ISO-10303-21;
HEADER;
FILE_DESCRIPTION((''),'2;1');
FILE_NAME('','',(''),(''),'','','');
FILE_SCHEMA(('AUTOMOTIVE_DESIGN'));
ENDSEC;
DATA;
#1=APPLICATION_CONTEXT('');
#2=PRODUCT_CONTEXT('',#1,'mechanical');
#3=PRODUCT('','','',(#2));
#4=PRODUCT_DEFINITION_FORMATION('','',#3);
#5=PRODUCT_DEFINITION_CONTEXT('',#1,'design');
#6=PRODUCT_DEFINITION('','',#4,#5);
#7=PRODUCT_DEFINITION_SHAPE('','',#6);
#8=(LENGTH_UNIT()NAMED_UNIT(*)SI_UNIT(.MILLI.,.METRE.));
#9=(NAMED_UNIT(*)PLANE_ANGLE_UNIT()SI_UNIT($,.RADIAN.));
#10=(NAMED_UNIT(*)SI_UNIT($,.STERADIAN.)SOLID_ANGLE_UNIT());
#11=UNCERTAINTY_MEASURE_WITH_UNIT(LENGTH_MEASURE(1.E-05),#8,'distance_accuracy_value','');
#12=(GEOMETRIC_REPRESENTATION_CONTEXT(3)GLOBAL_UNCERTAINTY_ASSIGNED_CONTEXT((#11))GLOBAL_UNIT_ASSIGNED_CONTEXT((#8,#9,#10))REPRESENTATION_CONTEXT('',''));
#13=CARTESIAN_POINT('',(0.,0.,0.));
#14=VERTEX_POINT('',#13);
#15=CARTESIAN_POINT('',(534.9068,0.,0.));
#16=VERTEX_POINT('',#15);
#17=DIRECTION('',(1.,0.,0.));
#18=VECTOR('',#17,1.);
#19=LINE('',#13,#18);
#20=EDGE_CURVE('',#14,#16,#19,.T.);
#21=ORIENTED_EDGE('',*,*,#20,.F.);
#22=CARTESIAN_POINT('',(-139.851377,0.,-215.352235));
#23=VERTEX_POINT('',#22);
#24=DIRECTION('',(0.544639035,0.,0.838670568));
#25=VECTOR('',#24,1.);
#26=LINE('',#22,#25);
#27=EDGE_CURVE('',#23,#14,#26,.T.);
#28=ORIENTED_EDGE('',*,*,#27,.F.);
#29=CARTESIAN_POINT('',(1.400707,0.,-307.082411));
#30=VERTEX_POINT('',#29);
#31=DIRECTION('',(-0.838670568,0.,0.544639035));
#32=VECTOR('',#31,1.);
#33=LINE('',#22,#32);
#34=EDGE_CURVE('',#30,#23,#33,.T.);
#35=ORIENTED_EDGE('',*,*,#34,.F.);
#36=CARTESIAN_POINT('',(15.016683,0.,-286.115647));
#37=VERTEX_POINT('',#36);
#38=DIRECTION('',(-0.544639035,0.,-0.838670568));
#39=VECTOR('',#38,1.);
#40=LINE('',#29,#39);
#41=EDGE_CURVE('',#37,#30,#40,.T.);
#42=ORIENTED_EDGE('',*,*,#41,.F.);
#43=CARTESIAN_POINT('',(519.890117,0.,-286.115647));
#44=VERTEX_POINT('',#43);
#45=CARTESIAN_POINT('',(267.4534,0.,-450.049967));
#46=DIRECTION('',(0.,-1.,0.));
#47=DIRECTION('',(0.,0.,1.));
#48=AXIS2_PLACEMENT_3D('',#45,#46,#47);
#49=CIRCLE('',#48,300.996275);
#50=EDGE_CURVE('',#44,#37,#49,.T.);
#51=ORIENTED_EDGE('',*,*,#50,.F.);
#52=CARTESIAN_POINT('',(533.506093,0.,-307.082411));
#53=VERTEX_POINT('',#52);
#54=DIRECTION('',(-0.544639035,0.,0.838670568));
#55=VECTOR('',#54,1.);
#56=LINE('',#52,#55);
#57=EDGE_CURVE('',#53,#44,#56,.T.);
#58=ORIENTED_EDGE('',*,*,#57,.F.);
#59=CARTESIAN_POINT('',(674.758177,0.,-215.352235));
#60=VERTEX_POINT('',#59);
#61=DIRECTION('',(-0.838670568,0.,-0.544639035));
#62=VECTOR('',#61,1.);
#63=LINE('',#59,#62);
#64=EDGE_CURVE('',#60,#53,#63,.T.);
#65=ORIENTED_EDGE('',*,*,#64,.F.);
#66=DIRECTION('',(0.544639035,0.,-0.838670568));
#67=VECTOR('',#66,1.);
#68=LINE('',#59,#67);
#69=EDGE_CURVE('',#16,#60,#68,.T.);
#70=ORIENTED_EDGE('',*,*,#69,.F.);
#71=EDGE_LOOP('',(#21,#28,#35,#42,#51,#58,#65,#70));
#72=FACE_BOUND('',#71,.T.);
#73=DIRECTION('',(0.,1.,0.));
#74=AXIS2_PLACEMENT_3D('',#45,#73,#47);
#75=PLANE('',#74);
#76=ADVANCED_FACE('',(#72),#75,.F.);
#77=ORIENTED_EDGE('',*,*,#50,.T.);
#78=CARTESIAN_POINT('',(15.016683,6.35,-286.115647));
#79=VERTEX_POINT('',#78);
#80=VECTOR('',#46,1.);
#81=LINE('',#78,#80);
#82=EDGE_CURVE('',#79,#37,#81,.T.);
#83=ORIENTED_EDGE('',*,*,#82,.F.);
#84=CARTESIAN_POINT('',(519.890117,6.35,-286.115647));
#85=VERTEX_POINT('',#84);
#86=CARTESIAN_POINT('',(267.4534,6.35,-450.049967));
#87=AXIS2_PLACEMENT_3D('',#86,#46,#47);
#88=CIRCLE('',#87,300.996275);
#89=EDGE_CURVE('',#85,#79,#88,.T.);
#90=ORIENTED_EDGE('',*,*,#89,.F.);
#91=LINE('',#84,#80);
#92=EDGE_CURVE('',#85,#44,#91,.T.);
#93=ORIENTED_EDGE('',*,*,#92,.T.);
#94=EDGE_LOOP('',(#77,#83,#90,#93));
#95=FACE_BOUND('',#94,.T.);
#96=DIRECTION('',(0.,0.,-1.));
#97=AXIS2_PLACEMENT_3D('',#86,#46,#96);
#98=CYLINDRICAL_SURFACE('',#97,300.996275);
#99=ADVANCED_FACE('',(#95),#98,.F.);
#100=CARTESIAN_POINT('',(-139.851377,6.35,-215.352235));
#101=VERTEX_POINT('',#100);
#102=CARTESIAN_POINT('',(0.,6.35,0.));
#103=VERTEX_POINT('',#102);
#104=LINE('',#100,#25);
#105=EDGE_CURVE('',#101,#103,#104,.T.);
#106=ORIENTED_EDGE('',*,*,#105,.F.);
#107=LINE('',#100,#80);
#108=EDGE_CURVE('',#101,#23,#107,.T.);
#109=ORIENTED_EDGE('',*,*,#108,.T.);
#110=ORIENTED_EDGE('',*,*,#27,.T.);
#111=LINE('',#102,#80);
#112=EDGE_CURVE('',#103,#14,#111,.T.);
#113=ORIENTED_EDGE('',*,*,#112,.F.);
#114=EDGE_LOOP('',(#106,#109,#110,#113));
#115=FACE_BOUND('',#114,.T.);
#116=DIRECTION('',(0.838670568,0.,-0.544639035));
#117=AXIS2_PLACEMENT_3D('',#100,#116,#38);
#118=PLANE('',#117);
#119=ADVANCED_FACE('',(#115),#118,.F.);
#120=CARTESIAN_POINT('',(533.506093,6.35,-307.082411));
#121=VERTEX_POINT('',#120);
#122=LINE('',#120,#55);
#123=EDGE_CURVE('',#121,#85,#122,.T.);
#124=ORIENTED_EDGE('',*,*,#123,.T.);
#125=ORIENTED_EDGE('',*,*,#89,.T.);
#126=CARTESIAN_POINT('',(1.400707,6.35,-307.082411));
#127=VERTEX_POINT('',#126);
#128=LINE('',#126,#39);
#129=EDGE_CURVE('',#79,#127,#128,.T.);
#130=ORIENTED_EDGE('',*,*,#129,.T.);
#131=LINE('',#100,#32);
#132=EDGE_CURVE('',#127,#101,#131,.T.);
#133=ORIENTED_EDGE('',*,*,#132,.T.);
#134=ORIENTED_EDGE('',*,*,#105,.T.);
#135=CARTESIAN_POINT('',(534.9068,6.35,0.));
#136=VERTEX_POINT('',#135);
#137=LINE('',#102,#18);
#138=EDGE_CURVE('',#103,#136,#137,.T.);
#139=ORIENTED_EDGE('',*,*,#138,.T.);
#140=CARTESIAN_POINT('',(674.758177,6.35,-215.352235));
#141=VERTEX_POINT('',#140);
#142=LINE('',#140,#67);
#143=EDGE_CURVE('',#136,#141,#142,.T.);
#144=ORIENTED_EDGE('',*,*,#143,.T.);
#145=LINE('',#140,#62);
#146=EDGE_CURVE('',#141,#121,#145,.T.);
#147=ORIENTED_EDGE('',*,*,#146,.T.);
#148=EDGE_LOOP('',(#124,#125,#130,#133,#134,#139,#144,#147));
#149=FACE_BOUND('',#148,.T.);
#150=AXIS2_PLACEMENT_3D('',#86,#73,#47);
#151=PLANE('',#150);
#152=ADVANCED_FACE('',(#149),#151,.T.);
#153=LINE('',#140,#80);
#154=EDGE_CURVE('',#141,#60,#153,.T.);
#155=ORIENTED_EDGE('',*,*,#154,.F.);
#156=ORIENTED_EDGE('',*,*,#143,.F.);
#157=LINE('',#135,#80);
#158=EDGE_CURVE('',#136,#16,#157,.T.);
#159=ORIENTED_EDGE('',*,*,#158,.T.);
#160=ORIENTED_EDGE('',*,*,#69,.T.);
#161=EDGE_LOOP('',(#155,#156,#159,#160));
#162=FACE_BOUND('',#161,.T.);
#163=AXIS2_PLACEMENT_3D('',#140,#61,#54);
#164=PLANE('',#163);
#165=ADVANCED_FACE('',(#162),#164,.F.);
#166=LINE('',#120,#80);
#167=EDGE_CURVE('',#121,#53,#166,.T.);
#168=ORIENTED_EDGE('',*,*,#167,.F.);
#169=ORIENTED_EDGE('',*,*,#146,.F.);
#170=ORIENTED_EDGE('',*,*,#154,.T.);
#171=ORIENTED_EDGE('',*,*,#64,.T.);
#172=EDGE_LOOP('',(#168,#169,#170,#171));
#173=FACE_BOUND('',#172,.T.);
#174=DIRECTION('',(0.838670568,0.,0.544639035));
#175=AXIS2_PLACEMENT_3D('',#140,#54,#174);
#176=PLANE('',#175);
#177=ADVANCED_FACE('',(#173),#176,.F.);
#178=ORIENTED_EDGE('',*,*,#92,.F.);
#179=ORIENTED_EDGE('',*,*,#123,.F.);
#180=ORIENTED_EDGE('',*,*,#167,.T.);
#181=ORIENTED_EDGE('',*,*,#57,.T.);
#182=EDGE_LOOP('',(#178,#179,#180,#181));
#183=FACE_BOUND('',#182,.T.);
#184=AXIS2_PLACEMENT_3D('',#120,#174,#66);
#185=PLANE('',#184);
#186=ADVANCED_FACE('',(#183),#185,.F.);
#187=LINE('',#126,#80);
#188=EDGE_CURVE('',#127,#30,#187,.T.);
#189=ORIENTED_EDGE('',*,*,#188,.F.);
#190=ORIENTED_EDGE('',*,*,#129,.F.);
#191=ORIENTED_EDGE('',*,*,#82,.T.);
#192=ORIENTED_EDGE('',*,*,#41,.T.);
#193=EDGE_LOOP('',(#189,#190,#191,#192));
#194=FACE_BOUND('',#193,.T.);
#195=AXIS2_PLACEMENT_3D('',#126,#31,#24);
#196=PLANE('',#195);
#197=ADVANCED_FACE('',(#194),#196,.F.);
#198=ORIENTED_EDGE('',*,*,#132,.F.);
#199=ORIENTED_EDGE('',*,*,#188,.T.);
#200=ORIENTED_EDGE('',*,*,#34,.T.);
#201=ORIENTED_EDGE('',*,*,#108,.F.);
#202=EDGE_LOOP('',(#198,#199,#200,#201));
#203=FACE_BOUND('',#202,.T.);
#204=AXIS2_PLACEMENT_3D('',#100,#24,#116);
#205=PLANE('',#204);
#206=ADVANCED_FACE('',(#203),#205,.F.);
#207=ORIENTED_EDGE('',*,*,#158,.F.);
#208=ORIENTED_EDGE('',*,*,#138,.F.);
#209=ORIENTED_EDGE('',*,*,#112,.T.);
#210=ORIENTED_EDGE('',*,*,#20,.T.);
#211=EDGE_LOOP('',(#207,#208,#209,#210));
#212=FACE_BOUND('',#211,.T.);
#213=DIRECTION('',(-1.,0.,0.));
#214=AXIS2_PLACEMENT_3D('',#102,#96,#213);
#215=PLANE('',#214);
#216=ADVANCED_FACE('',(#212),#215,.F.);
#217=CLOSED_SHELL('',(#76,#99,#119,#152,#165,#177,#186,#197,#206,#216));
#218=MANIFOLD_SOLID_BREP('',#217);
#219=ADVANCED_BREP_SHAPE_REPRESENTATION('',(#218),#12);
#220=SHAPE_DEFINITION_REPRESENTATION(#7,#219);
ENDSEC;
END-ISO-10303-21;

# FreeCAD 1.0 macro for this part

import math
import FreeCAD as App
import Part
import Sketcher

V = App.Vector
Q = App.Units.Quantity

doc = App.newDocument("Part")
params = doc.addObject("Spreadsheet::Sheet", "Params")
for row, (alias, value) in enumerate([
    ("sketch1_length", "25 mm"),
    ("pad1_length", "6.35 mm"),
], start=1):
    params.set(f"A{row}", alias)
    params.set(f"B{row}", "=" + value)
    params.setAlias(f"B{row}", alias)

body = doc.addObject("PartDesign::Body", "Body")

# Sketch on XZ plane
sketch1 = doc.addObject("Sketcher::SketchObject", "Sketch")
body.addObject(sketch1)
sketch1.AttachmentSupport = (doc.XZ_Plane, [""])
sketch1.MapMode = "FlatFace"
sketch1.addGeometry(Part.LineSegment(V(0, 0, 0), V(535, 0, 0)), False)
sketch1.addGeometry(Part.LineSegment(V(535, 0, 0), V(675, -215, 0)), False)
sketch1.addGeometry(Part.LineSegment(V(675, -215, 0), V(534, -307, 0)), False)
sketch1.addGeometry(Part.LineSegment(V(534, -307, 0), V(520, -286, 0)), False)
sketch1.addGeometry(Part.ArcOfCircle(Part.Circle(V(267, -450, 0), V(0, 0, 1), 301), math.radians(33), math.radians(147)), False)
sketch1.addGeometry(Part.LineSegment(V(15, -286, 0), V(1, -307, 0)), False)
sketch1.addGeometry(Part.LineSegment(V(1, -307, 0), V(-140, -215, 0)), False)
sketch1.addGeometry(Part.LineSegment(V(-140, -215, 0), V(0, 0, 0)), False)
sketch1.addConstraint(Sketcher.Constraint("Coincident", 0, 2, 1, 1))
sketch1.addConstraint(Sketcher.Constraint("Coincident", 1, 2, 2, 1))
sketch1.addConstraint(Sketcher.Constraint("Coincident", 2, 2, 3, 1))
sketch1.addConstraint(Sketcher.Constraint("Tangent", 3, 2, 4, 1))
sketch1.addConstraint(Sketcher.Constraint("Tangent", 4, 2, 5, 1))
sketch1.addConstraint(Sketcher.Constraint("Coincident", 5, 2, 6, 1))
sketch1.addConstraint(Sketcher.Constraint("Coincident", 6, 2, 7, 1))
sketch1.addConstraint(Sketcher.Constraint("Coincident", 7, 2, 0, 1))
sketch1.addConstraint(Sketcher.Constraint("Horizontal", 0))
sketch1.addConstraint(Sketcher.Constraint("Coincident", 7, 2, -1, 1))
sketch1.addConstraint(Sketcher.Constraint("Perpendicular", 1, 2))
sketch1.addConstraint(Sketcher.Constraint("Perpendicular", 2, 3))
sketch1.addConstraint(Sketcher.Constraint("Perpendicular", 5, 6))
sketch1.addConstraint(Sketcher.Constraint("Perpendicular", 6, 7))
sketch1.addConstraint(Sketcher.Constraint("Horizontal", 3, 2, 4, 2))
sketch1.addConstraint(Sketcher.Constraint("Horizontal", 2, 2, 5, 2))
sketch1.addConstraint(Sketcher.Constraint("Horizontal", 1, 2, 6, 2))
sketch1.addConstraint(Sketcher.Constraint("Angle", 1, Q("-57 deg")))
sketch1.addConstraint(Sketcher.Constraint("Distance", 3, Q("25 mm")))
sketch1.addConstraint(Sketcher.Constraint("DistanceX", 0, 1, 0, 2, Q("534.9068 mm")))
sketch1.addConstraint(Sketcher.Constraint("Radius", 4, Q("300.996275 mm")))
sketch1.addConstraint(Sketcher.Constraint("Distance", 1, Q("256.7781 mm")))
sketch1.setExpression("Constraints[18]", "Params.sketch1_length")
pad1 = doc.addObject("PartDesign::Pad", "Pad")
body.addObject(pad1)
pad1.Profile = sketch1
pad1.setExpression("Length", "Params.pad1_length")
pad1.Reversed = True

doc.recompute()
